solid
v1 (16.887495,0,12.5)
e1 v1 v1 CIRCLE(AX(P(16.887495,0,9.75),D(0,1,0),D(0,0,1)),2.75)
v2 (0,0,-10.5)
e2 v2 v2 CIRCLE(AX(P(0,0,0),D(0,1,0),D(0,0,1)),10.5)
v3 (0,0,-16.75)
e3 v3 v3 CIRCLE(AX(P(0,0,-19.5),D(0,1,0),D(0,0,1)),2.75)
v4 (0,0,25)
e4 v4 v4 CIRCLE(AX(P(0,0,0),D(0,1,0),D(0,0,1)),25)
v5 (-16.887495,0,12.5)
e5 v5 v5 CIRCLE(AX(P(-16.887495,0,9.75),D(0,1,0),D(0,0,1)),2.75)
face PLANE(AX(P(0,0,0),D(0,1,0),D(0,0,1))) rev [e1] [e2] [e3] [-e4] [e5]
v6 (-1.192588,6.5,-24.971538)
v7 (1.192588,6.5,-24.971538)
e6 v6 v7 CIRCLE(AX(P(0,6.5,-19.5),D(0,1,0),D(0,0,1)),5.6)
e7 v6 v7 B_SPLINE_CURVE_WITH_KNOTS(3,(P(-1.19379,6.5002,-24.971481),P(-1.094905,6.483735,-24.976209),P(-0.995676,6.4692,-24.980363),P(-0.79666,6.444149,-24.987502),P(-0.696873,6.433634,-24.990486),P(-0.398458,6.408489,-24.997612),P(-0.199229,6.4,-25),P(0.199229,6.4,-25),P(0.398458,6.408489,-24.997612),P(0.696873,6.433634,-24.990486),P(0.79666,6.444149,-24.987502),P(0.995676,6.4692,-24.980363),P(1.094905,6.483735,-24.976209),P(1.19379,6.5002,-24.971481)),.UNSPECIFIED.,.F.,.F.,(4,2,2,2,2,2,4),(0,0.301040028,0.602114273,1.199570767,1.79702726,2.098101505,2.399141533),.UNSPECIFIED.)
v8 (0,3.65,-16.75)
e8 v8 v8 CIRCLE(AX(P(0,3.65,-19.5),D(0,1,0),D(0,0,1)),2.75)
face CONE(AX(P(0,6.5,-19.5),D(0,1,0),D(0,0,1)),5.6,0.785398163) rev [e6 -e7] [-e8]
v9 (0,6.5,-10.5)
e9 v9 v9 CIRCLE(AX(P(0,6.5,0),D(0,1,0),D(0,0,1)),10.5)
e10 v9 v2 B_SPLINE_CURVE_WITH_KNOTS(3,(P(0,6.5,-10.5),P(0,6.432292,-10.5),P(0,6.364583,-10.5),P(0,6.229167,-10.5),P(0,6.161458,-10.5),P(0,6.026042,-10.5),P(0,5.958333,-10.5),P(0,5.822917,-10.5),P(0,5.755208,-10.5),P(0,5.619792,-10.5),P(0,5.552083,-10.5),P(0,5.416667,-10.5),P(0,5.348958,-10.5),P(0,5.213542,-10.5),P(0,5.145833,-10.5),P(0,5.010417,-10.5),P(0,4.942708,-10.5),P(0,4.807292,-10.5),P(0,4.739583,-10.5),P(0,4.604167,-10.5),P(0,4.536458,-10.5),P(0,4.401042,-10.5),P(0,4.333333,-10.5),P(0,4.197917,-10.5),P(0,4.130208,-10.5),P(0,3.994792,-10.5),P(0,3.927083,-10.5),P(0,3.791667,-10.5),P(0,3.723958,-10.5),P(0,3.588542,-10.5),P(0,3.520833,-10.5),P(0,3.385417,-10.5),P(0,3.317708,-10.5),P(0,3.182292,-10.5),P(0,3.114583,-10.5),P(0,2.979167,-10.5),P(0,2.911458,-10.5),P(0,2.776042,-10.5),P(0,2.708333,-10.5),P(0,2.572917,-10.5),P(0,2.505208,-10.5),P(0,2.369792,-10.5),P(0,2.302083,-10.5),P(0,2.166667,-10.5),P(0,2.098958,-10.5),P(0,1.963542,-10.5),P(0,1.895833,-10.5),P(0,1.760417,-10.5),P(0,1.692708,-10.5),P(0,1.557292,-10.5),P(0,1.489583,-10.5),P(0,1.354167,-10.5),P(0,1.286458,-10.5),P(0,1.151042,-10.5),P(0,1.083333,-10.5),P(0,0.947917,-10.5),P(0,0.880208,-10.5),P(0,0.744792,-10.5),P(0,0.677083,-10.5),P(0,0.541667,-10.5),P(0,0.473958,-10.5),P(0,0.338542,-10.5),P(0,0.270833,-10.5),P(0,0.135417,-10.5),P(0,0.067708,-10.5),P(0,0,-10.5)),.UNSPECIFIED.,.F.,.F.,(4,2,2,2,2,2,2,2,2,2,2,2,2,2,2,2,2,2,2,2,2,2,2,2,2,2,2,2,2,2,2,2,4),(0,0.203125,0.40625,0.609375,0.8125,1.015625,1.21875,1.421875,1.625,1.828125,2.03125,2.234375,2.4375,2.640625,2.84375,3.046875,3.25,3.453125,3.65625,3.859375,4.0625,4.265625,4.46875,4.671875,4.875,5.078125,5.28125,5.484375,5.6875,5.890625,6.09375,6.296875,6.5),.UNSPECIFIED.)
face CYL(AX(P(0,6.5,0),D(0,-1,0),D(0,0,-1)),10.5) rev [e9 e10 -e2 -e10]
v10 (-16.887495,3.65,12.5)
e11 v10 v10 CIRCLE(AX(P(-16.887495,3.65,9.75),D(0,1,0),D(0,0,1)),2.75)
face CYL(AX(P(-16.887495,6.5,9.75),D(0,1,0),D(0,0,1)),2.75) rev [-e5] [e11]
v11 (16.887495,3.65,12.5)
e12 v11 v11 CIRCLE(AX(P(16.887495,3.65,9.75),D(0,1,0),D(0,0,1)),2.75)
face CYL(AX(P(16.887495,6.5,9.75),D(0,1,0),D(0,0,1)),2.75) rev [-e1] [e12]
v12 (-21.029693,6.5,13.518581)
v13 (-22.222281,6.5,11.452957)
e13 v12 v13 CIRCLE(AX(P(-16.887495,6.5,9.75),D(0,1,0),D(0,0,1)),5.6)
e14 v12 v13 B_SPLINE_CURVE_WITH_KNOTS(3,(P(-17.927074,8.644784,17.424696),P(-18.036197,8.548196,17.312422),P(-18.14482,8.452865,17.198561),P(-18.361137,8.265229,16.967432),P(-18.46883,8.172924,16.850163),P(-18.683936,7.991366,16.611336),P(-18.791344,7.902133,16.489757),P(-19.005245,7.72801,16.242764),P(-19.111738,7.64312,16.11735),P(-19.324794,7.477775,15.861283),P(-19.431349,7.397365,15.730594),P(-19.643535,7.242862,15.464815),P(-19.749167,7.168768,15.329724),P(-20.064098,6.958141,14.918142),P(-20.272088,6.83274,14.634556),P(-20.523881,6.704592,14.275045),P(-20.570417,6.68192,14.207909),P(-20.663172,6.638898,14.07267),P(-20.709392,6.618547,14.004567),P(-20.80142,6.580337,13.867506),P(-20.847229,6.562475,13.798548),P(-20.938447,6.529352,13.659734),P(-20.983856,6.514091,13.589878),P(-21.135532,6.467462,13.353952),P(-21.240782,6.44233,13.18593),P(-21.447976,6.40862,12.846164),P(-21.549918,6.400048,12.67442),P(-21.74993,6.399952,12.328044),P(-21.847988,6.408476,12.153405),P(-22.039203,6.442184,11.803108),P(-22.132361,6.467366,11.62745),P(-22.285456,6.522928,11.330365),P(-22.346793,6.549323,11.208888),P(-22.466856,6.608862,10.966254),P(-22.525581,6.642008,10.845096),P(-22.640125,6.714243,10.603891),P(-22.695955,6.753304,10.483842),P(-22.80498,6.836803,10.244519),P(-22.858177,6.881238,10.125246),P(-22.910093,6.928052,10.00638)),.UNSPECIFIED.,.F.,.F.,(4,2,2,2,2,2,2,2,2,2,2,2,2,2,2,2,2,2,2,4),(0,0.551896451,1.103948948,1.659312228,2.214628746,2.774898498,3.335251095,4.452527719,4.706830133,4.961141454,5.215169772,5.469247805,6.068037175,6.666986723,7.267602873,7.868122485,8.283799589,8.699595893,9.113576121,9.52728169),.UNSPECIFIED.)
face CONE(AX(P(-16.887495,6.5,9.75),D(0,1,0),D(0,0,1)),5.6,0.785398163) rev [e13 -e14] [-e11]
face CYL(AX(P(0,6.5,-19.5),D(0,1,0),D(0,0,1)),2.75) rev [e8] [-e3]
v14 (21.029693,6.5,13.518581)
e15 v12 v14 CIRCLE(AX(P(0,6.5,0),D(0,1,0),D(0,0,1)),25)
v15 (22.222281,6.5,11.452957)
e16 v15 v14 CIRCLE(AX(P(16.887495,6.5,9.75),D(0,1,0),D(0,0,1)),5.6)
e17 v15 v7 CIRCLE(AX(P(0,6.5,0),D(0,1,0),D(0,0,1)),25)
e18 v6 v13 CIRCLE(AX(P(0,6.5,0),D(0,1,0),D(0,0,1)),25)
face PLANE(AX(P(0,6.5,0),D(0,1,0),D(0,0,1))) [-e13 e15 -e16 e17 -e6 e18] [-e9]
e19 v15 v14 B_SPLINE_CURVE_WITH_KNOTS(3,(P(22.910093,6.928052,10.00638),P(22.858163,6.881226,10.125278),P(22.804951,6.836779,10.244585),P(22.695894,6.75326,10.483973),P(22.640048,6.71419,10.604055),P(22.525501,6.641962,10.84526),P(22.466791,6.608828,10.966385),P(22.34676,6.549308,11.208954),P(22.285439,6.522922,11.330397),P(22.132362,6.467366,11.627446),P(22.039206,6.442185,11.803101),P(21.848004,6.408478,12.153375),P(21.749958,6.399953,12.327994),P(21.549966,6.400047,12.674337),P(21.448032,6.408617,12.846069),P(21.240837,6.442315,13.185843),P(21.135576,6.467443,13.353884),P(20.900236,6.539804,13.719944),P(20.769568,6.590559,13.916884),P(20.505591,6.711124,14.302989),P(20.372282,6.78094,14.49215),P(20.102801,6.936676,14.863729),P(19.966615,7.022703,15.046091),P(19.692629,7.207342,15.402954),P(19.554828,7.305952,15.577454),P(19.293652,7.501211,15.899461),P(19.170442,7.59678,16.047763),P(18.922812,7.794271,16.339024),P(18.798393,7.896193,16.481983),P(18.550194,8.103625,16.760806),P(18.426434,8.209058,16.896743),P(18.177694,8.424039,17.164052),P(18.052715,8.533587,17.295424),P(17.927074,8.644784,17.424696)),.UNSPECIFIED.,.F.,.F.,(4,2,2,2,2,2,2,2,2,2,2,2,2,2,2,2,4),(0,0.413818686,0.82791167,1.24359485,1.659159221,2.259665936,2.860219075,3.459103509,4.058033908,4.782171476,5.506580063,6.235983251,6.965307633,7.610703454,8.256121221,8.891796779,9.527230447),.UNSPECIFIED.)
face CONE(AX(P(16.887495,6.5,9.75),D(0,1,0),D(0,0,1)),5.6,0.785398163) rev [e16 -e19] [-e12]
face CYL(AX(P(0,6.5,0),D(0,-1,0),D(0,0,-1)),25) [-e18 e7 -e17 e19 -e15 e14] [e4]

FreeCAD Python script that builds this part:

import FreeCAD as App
import Part
import Sketcher
from FreeCAD import Vector
Q = App.Units.Quantity

doc = App.newDocument("Part")
body = doc.addObject("PartDesign::Body", "Body")

sketch1 = body.newObject("Sketcher::SketchObject", "Sketch")
sketch1.AttachmentSupport = (doc.getObject("XZ_Plane"), [""])
sketch1.MapMode = "FlatFace"
sketch1.addGeometry(Part.Circle(Vector(0, 0, 0), Vector(0, 0, 1), 25), False)
sketch1.addGeometry(Part.Circle(Vector(0, 0, 0), Vector(0, 0, 1), 10), False)
sketch1.addConstraint(Sketcher.Constraint("Coincident", 0, 3, -1, 1))
sketch1.addConstraint(Sketcher.Constraint("Coincident", 1, 3, -1, 1))
sketch1.addConstraint(Sketcher.Constraint("Diameter", 0, Q("50 mm")))
sketch1.addConstraint(Sketcher.Constraint("Diameter", 1, Q("21 mm")))
pad1 = body.newObject("PartDesign::Pad", "Pad")
pad1.Profile = sketch1
pad1.Length = 6.5
pad1.Reversed = True

sketch2 = body.newObject("Sketcher::SketchObject", "Sketch001")
sketch2.AttachmentSupport = (doc.getObject("XZ_Plane"), [""])
sketch2.MapMode = "FlatFace"
sketch2.AttachmentOffset = App.Placement(Vector(0, 0, -6.5), App.Rotation())
sketch2.addGeometry(Part.Circle(Vector(0, -19.5, 0), Vector(0, 0, 1), 2.8), False)
sketch2.addConstraint(Sketcher.Constraint("PointOnObject", 0, 3, -2))
sketch2.addConstraint(Sketcher.Constraint("Diameter", 0, Q("5.5 mm")))
sketch2.addConstraint(Sketcher.Constraint("DistanceY", 0, 3, -1, 1, Q("19.5 mm")))
doc.recompute()
hole = body.newObject("PartDesign::Hole", "Hole")
hole.Profile = sketch2
hole.ThreadType = "None"
hole.Diameter = 5.5
hole.DepthType = "ThroughAll"
hole.HoleCutType = "Countersink"
hole.HoleCutDiameter = 11.2
hole.HoleCutCountersinkAngle = 90
hole.Reversed = True
doc.recompute()

polarpattern = body.newObject("PartDesign::PolarPattern", "PolarPattern")
polarpattern.Originals = [hole]
polarpattern.Axis = (doc.getObject("Y_Axis"), [""])
polarpattern.Angle = 360
polarpattern.Occurrences = 3
body.Tip = polarpattern

doc.recompute()
